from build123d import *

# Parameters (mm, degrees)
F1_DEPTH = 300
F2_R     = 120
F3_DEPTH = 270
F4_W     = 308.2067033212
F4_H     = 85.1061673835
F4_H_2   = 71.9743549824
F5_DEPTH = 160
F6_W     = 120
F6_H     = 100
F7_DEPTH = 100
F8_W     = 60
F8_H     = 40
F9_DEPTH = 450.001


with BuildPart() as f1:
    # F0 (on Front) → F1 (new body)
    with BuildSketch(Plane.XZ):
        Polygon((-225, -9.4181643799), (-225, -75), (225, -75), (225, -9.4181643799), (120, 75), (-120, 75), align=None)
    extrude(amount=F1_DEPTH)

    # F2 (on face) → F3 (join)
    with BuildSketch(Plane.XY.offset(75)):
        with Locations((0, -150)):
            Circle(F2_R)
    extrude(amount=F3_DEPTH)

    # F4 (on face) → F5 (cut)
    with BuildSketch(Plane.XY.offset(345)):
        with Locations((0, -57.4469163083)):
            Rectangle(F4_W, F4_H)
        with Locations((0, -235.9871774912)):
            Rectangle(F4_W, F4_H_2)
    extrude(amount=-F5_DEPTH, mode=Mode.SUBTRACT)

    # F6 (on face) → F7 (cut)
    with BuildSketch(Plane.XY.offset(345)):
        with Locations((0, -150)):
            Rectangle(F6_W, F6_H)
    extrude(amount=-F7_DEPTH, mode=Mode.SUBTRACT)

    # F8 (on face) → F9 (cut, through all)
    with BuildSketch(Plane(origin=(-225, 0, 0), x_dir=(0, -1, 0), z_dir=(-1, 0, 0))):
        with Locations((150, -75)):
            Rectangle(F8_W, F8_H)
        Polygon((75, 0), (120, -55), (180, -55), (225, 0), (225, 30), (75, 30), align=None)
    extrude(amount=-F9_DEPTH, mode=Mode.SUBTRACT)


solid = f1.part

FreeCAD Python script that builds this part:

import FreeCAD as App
import Part
import Sketcher


def add_polygon(sketch, points):
    """Adds a closed chain of lines whose ends are joined by coincident constraints."""
    first, n = sketch.GeometryCount, len(points)
    for a, b in zip(points, points[1:] + points[:1]):
        sketch.addGeometry(Part.LineSegment(App.Vector(*a, 0), App.Vector(*b, 0)), False)
    for i in range(n):
        sketch.addConstraint(Sketcher.Constraint("Coincident", first + i, 2, first + (i + 1) % n, 1))

doc = App.newDocument("Part")
body = doc.addObject("PartDesign::Body", "Body")

sketch1 = doc.addObject("Sketcher::SketchObject", "Sketch")
body.addObject(sketch1)
sketch1.AttachmentSupport = (doc.XZ_Plane, [""])
sketch1.MapMode = "FlatFace"
add_polygon(sketch1, [(-225, -9), (-225, -75), (225, -75), (225, -9), (120, 75), (-120, 75)])
sketch1.addConstraint(Sketcher.Constraint("Vertical", 0))
sketch1.addConstraint(Sketcher.Constraint("Horizontal", 1))
sketch1.addConstraint(Sketcher.Constraint("Vertical", 2))
sketch1.addConstraint(Sketcher.Constraint("Horizontal", 4))
sketch1.addConstraint(Sketcher.Constraint("Symmetric", 2, 2, 5, 2, -2))
sketch1.addConstraint(Sketcher.Constraint("Equal", 3, 5))
sketch1.addConstraint(Sketcher.Constraint("DistanceX", 1, 1, 1, 2, 450.0))
sketch1.addConstraint(Sketcher.Constraint("DistanceX", 4, 2, 4, 1, 240.0))
sketch1.addConstraint(Sketcher.Constraint("DistanceY", 0, 2, -1, 1, 75.0))
sketch1.addConstraint(Sketcher.Constraint("DistanceY", -1, 1, 3, 2, 75.0))
sketch1.addConstraint(Sketcher.Constraint("Distance", 3, 134.72723))
pad1 = doc.addObject("PartDesign::Pad", "Pad")
body.addObject(pad1)
pad1.Profile = sketch1
pad1.Length = 300

sketch2 = doc.addObject("Sketcher::SketchObject", "Sketch001")
body.addObject(sketch2)
sketch2.AttachmentSupport = (doc.XY_Plane, [""])
sketch2.MapMode = "FlatFace"
sketch2.AttachmentOffset = App.Placement(App.Vector(0, 0, 75), App.Rotation())
sketch2.addGeometry(Part.Circle(App.Vector(0, -150, 0), App.Vector(0, 0, 1), 120), False)
sketch2.addConstraint(Sketcher.Constraint("PointOnObject", 0, 3, -2))
sketch2.addConstraint(Sketcher.Constraint("Diameter", 0, 240.0))
sketch2.addConstraint(Sketcher.Constraint("DistanceY", 0, 3, -1, 1, 150.0))
pad2 = doc.addObject("PartDesign::Pad", "Pad001")
body.addObject(pad2)
pad2.Profile = sketch2
pad2.Length = 270

sketch3 = doc.addObject("Sketcher::SketchObject", "Sketch002")
body.addObject(sketch3)
sketch3.AttachmentSupport = (doc.XY_Plane, [""])
sketch3.MapMode = "FlatFace"
sketch3.AttachmentOffset = App.Placement(App.Vector(0, 0, 345), App.Rotation())
add_polygon(sketch3, [(-154, -15), (-154, -100), (154, -100), (154, -15)])
add_polygon(sketch3, [(-154, -200), (-154, -272), (154, -272), (154, -200)])
sketch3.addConstraint(Sketcher.Constraint("Vertical", 0))
sketch3.addConstraint(Sketcher.Constraint("Horizontal", 1))
sketch3.addConstraint(Sketcher.Constraint("Vertical", 2))
sketch3.addConstraint(Sketcher.Constraint("Horizontal", 3))
sketch3.addConstraint(Sketcher.Constraint("Vertical", 4))
sketch3.addConstraint(Sketcher.Constraint("Horizontal", 5))
sketch3.addConstraint(Sketcher.Constraint("Vertical", 6))
sketch3.addConstraint(Sketcher.Constraint("Horizontal", 7))
sketch3.addConstraint(Sketcher.Constraint("Vertical", 3, 2, 4, 2))
sketch3.addConstraint(Sketcher.Constraint("Vertical", 2, 2, 5, 2))
sketch3.addConstraint(Sketcher.Constraint("DistanceY", 0, 2, -1, 1, 100.0))
sketch3.addConstraint(Sketcher.Constraint("DistanceY", 6, 2, -1, 1, 200.0))
sketch3.addConstraint(Sketcher.Constraint("DistanceX", 1, 1, 1, 2, 308.206703))
sketch3.addConstraint(Sketcher.Constraint("DistanceY", 0, 2, 0, 1, 85.106167))
sketch3.addConstraint(Sketcher.Constraint("DistanceY", 4, 2, 4, 1, 71.974355))
sketch3.addConstraint(Sketcher.Constraint("DistanceX", 0, 2, -1, 1, 154.103352))
pocket1 = doc.addObject("PartDesign::Pocket", "Pocket")
body.addObject(pocket1)
pocket1.Profile = sketch3
pocket1.Length = 160

sketch4 = doc.addObject("Sketcher::SketchObject", "Sketch003")
body.addObject(sketch4)
sketch4.AttachmentSupport = (doc.XY_Plane, [""])
sketch4.MapMode = "FlatFace"
sketch4.AttachmentOffset = App.Placement(App.Vector(0, 0, 345), App.Rotation())
add_polygon(sketch4, [(-60, -100), (-60, -200), (60, -200), (60, -100)])
sketch4.addConstraint(Sketcher.Constraint("Vertical", 0))
sketch4.addConstraint(Sketcher.Constraint("Horizontal", 1))
sketch4.addConstraint(Sketcher.Constraint("Vertical", 2))
sketch4.addConstraint(Sketcher.Constraint("Horizontal", 3))
sketch4.addConstraint(Sketcher.Constraint("DistanceX", 1, 1, 1, 2, 120.0))
sketch4.addConstraint(Sketcher.Constraint("DistanceY", 0, 2, 0, 1, 100.0))
sketch4.addConstraint(Sketcher.Constraint("DistanceX", 0, 2, -1, 1, 60.0))
sketch4.addConstraint(Sketcher.Constraint("DistanceY", 0, 2, -1, 1, 200.0))
pocket2 = doc.addObject("PartDesign::Pocket", "Pocket001")
body.addObject(pocket2)
pocket2.Profile = sketch4
pocket2.Length = 100

sketch5 = doc.addObject("Sketcher::SketchObject", "Sketch004")
body.addObject(sketch5)
sketch5.AttachmentSupport = (doc.YZ_Plane, [""])
sketch5.MapMode = "FlatFace"
sketch5.AttachmentOffset = App.Placement(App.Vector(0, 0, -225), App.Rotation())
add_polygon(sketch5, [(-120, -55), (-120, -95), (-180, -95), (-180, -55), (-225, 0), (-225, 30), (-75, 30), (-75, 0)])
sketch5.addConstraint(Sketcher.Constraint("Vertical", 0))
sketch5.addConstraint(Sketcher.Constraint("Horizontal", 1))
sketch5.addConstraint(Sketcher.Constraint("Vertical", 2))
sketch5.addConstraint(Sketcher.Constraint("Vertical", 4))
sketch5.addConstraint(Sketcher.Constraint("Horizontal", 5))
sketch5.addConstraint(Sketcher.Constraint("Vertical", 6))
sketch5.addConstraint(Sketcher.Constraint("PointOnObject", 3, 2, -1))
sketch5.addConstraint(Sketcher.Constraint("PointOnObject", 6, 2, -1))
sketch5.addConstraint(Sketcher.Constraint("Horizontal", 2, 2, 7, 2))
sketch5.addConstraint(Sketcher.Constraint("Equal", 3, 7))
sketch5.addConstraint(Sketcher.Constraint("DistanceX", 1, 2, 1, 1, 60.0))
sketch5.addConstraint(Sketcher.Constraint("DistanceX", 5, 1, 5, 2, 150.0))
sketch5.addConstraint(Sketcher.Constraint("DistanceY", 0, 2, 0, 1, 40.0))
sketch5.addConstraint(Sketcher.Constraint("DistanceY", 4, 1, 4, 2, 30.0))
sketch5.addConstraint(Sketcher.Constraint("DistanceX", 0, 2, -1, 1, 120.0))
sketch5.addConstraint(Sketcher.Constraint("DistanceY", 0, 2, -1, 1, 95.0))
pocket3 = doc.addObject("PartDesign::Pocket", "Pocket002")
body.addObject(pocket3)
pocket3.Profile = sketch5
pocket3.Type = "ThroughAll"
pocket3.Reversed = True

doc.recompute()
